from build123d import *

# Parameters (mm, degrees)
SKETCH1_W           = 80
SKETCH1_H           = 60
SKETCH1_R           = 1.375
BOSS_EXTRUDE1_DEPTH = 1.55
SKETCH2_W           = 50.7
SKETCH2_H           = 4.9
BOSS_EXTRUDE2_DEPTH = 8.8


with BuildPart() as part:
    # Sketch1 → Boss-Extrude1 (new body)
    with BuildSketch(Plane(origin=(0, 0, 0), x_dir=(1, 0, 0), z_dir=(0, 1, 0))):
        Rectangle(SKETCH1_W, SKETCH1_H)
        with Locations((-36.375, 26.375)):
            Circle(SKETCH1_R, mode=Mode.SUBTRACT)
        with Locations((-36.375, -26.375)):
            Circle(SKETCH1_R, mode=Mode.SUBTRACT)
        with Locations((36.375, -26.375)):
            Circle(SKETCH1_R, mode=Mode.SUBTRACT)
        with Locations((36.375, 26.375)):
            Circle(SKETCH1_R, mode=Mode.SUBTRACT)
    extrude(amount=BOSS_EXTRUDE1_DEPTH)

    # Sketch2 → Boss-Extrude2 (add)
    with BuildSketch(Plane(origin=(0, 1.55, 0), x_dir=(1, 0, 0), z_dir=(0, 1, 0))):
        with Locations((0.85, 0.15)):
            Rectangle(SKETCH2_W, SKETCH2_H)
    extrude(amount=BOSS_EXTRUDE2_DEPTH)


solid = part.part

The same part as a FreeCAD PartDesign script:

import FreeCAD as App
import Part
import Sketcher

V = App.Vector


def add_polygon(sketch, points):
    """Adds a closed chain of lines whose ends are joined by coincident constraints."""
    first, n = sketch.GeometryCount, len(points)
    for a, b in zip(points, points[1:] + points[:1]):
        sketch.addGeometry(Part.LineSegment(App.Vector(*a, 0), App.Vector(*b, 0)), False)
    for i in range(n):
        sketch.addConstraint(Sketcher.Constraint("Coincident", first + i, 2, first + (i + 1) % n, 1))

doc = App.newDocument("Part")
body = doc.addObject("PartDesign::Body", "Body")

# Sketch on XZ plane
sketch1 = doc.addObject("Sketcher::SketchObject", "Sketch")
body.addObject(sketch1)
sketch1.AttachmentSupport = (doc.XZ_Plane, [""])
sketch1.MapMode = "FlatFace"
add_polygon(sketch1, [(-40, -30), (-40, 30), (40, 30), (40, -30)])  # lines 0-3
sketch1.addGeometry(Part.Circle(V(-36.375, 26.375, 0), V(0, 0, 1), 1.375), False)  # 4
sketch1.addGeometry(Part.Circle(V(36.375, 26.375, 0), V(0, 0, 1), 1.375), False)  # 5
sketch1.addGeometry(Part.Circle(V(-36.375, -26.375, 0), V(0, 0, 1), 1.375), False)  # 6
sketch1.addGeometry(Part.Circle(V(36.375, -26.375, 0), V(0, 0, 1), 1.375), False)  # 7
sketch1.addConstraint([
    Sketcher.Constraint("Vertical", 0),
    Sketcher.Constraint("Horizontal", 1),
    Sketcher.Constraint("Vertical", 2),
    Sketcher.Constraint("Horizontal", 3),
    Sketcher.Constraint("Equal", 4, 5),
    Sketcher.Constraint("Equal", 5, 6),
    Sketcher.Constraint("Equal", 6, 7),
    Sketcher.Constraint("Symmetric", 5, 3, 6, 3, -1, 1),
    Sketcher.Constraint("Symmetric", 4, 3, 7, 3, -1, 1),
    Sketcher.Constraint("Symmetric", 0, 2, 2, 2, -1, 1),
    Sketcher.Constraint("Symmetric", 4, 3, 5, 3, -2),
    Sketcher.Constraint("Diameter", 4, 2.75),
    Sketcher.Constraint("DistanceX", 1, 1, 1, 2, 80.0),
    Sketcher.Constraint("DistanceY", 0, 1, 0, 2, 60.0),
    Sketcher.Constraint("DistanceX", 4, 3, 5, 3, 72.75),
    Sketcher.Constraint("DistanceY", 6, 3, 4, 3, 52.75),
])
pad1 = doc.addObject("PartDesign::Pad", "Pad")
body.addObject(pad1)
pad1.Profile = sketch1
pad1.Length = 1.55
pad1.Reversed = True

# Sketch on XZ plane
sketch2 = doc.addObject("Sketcher::SketchObject", "Sketch001")
body.addObject(sketch2)
sketch2.AttachmentSupport = (doc.XZ_Plane, [""])
sketch2.MapMode = "FlatFace"
sketch2.AttachmentOffset = App.Placement(V(0, 0, -1.55), App.Rotation())
add_polygon(sketch2, [(-24.5, -2.6), (-24.5, 2.3), (26.2, 2.3), (26.2, -2.6)])  # lines 0-3
sketch2.addConstraint([
    Sketcher.Constraint("Vertical", 0),
    Sketcher.Constraint("Horizontal", 1),
    Sketcher.Constraint("Vertical", 2),
    Sketcher.Constraint("Horizontal", 3),
    Sketcher.Constraint("DistanceX", 1, 1, 1, 2, 50.7),
    Sketcher.Constraint("DistanceY", 0, 1, 0, 2, 4.9),
    Sketcher.Constraint("DistanceX", 0, 2, -1, 1, 24.5),
    Sketcher.Constraint("DistanceY", -1, 1, 0, 2, 2.3),
])
pad2 = doc.addObject("PartDesign::Pad", "Pad001")
body.addObject(pad2)
pad2.Profile = sketch2
pad2.Length = 8.8
pad2.Reversed = True

doc.recompute()
